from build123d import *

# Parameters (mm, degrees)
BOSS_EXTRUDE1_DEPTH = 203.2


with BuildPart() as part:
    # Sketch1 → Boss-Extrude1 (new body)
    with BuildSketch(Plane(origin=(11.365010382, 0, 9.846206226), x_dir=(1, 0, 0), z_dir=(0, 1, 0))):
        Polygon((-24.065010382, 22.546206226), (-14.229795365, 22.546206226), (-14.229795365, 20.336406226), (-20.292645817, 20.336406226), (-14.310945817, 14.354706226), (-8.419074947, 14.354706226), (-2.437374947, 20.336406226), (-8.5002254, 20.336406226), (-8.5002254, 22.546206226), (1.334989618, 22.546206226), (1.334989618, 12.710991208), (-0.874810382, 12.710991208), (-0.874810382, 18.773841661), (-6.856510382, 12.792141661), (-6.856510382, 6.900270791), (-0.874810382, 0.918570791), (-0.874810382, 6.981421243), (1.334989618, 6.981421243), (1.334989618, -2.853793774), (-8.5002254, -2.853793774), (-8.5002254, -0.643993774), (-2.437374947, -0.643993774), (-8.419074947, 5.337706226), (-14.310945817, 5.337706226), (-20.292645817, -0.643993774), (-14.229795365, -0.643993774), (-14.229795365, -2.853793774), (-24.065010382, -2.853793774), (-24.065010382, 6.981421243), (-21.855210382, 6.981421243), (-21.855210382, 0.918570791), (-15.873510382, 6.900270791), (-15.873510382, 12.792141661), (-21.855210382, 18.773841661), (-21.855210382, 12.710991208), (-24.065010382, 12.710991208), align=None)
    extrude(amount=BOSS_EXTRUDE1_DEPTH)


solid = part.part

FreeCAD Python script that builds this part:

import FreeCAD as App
import Part
import Sketcher
from FreeCAD import Vector
Q = App.Units.Quantity


def add_polygon(sketch, points):
    """Adds a closed chain of lines whose ends are joined by coincident constraints."""
    first, n = sketch.GeometryCount, len(points)
    for a, b in zip(points, points[1:] + points[:1]):
        sketch.addGeometry(Part.LineSegment(App.Vector(*a, 0), App.Vector(*b, 0)), False)
    for i in range(n):
        sketch.addConstraint(Sketcher.Constraint("Coincident", first + i, 2, first + (i + 1) % n, 1))

doc = App.newDocument("Part")
body = doc.addObject("PartDesign::Body", "Body")

# Sketch on XZ plane
sketch1 = body.newObject("Sketcher::SketchObject", "Sketch")
sketch1.AttachmentSupport = (doc.getObject("XZ_Plane"), [""])
sketch1.MapMode = "FlatFace"
add_polygon(sketch1, [(-2.9, -12.7), (-12.7, -12.7), (-12.7, -2.9), (-10.5, -2.9), (-10.5, -8.9), (-4.5, -2.9), (-4.5, 2.9), (-10.5, 8.9), (-10.5, 2.9), (-12.7, 2.9), (-12.7, 12.7), (-2.9, 12.7), (-2.9, 10.5), (-8.9, 10.5), (-2.9, 4.5), (2.9, 4.5), (8.9, 10.5), (2.9, 10.5), (2.9, 12.7), (12.7, 12.7), (12.7, 2.9), (10.5, 2.9), (10.5, 8.9), (4.5, 2.9), (4.5, -2.9), (10.5, -8.9), (10.5, -2.9), (12.7, -2.9), (12.7, -12.7), (2.9, -12.7), (2.9, -10.5), (8.9, -10.5), (2.9, -4.5), (-2.9, -4.5), (-8.9, -10.5), (-2.9, -10.5)])  # lines 0-35
sketch1.addConstraint([
    Sketcher.Constraint("Horizontal", 0),
    Sketcher.Constraint("Vertical", 1),
    Sketcher.Constraint("Horizontal", 2),
    Sketcher.Constraint("Vertical", 3),
    Sketcher.Constraint("Vertical", 5),
    Sketcher.Constraint("Vertical", 7),
    Sketcher.Constraint("Horizontal", 8),
    Sketcher.Constraint("Vertical", 9),
    Sketcher.Constraint("Horizontal", 10),
    Sketcher.Constraint("Vertical", 11),
    Sketcher.Constraint("Horizontal", 12),
    Sketcher.Constraint("Horizontal", 14),
    Sketcher.Constraint("Horizontal", 16),
    Sketcher.Constraint("Vertical", 17),
    Sketcher.Constraint("Horizontal", 18),
    Sketcher.Constraint("Vertical", 19),
    Sketcher.Constraint("Horizontal", 20),
    Sketcher.Constraint("Vertical", 21),
    Sketcher.Constraint("Vertical", 23),
    Sketcher.Constraint("Vertical", 25),
    Sketcher.Constraint("Horizontal", 26),
    Sketcher.Constraint("Vertical", 27),
    Sketcher.Constraint("Horizontal", 28),
    Sketcher.Constraint("Vertical", 29),
    Sketcher.Constraint("Horizontal", 30),
    Sketcher.Constraint("Horizontal", 32),
    Sketcher.Constraint("Horizontal", 34),
    Sketcher.Constraint("Vertical", 35),
    Sketcher.Constraint("Symmetric", 0, 2, 18, 2, -1, 1),
    Sketcher.Constraint("Symmetric", 2, 2, 20, 2, -1, 1),
    Sketcher.Constraint("Symmetric", 4, 2, 22, 2, -1, 1),
    Sketcher.Constraint("Symmetric", 6, 2, 24, 2, -1, 1),
    Sketcher.Constraint("Symmetric", 8, 2, 26, 2, -1, 1),
    Sketcher.Constraint("Symmetric", 10, 2, 28, 2, -1, 1),
    Sketcher.Constraint("Symmetric", 12, 2, 30, 2, -1, 1),
    Sketcher.Constraint("Symmetric", 13, 2, 31, 2, -1, 1),
    Sketcher.Constraint("Symmetric", 15, 2, 33, 2, -1, 1),
    Sketcher.Constraint("Symmetric", 12, 2, 15, 2, -2),
    Sketcher.Constraint("Symmetric", 10, 2, 17, 2, -2),
    Sketcher.Constraint("Symmetric", 8, 2, 19, 2, -2),
    Sketcher.Constraint("Symmetric", 6, 2, 21, 2, -2),
    Sketcher.Constraint("Perpendicular", 4, 6),
    Sketcher.Constraint("Parallel", 6, 13),
    Sketcher.Constraint("Perpendicular", 13, 15),
    Sketcher.Constraint("Parallel", 15, 22),
    Sketcher.Constraint("Perpendicular", 22, 24),
    Sketcher.Constraint("Perpendicular", 31, 33),
    Sketcher.Constraint("Horizontal", 5, 2, 22, 2),
    Sketcher.Constraint("Vertical", 11, 2, 34, 2),
    Sketcher.Constraint("Equal", 28, 1),
    Sketcher.Constraint("Equal", 34, 3),
    Sketcher.Constraint("Equal", 32, 5),
    Sketcher.Constraint("Equal", 26, 11),
    Sketcher.Constraint("Equal", 6, 13),
    Sketcher.Constraint("DistanceX", 0, 2, -1, 1, Q("0.5 in")),
    Sketcher.Constraint("DistanceX", 2, 1, 2, 2, Q("0.087 in")),
    Sketcher.Constraint("DistanceX", 4, 2, 23, 2, Q("0.355 in")),
    Sketcher.Constraint("DistanceX", 12, 2, 12, 1, Q("6.06285 mm")),
    Sketcher.Constraint("DistanceX", 14, 1, 14, 2, Q("5.891871 mm")),
])
pad1 = body.newObject("PartDesign::Pad", "Pad")
pad1.Profile = sketch1
pad1.Length = Q("8 in")
pad1.Reversed = True

doc.recompute()
